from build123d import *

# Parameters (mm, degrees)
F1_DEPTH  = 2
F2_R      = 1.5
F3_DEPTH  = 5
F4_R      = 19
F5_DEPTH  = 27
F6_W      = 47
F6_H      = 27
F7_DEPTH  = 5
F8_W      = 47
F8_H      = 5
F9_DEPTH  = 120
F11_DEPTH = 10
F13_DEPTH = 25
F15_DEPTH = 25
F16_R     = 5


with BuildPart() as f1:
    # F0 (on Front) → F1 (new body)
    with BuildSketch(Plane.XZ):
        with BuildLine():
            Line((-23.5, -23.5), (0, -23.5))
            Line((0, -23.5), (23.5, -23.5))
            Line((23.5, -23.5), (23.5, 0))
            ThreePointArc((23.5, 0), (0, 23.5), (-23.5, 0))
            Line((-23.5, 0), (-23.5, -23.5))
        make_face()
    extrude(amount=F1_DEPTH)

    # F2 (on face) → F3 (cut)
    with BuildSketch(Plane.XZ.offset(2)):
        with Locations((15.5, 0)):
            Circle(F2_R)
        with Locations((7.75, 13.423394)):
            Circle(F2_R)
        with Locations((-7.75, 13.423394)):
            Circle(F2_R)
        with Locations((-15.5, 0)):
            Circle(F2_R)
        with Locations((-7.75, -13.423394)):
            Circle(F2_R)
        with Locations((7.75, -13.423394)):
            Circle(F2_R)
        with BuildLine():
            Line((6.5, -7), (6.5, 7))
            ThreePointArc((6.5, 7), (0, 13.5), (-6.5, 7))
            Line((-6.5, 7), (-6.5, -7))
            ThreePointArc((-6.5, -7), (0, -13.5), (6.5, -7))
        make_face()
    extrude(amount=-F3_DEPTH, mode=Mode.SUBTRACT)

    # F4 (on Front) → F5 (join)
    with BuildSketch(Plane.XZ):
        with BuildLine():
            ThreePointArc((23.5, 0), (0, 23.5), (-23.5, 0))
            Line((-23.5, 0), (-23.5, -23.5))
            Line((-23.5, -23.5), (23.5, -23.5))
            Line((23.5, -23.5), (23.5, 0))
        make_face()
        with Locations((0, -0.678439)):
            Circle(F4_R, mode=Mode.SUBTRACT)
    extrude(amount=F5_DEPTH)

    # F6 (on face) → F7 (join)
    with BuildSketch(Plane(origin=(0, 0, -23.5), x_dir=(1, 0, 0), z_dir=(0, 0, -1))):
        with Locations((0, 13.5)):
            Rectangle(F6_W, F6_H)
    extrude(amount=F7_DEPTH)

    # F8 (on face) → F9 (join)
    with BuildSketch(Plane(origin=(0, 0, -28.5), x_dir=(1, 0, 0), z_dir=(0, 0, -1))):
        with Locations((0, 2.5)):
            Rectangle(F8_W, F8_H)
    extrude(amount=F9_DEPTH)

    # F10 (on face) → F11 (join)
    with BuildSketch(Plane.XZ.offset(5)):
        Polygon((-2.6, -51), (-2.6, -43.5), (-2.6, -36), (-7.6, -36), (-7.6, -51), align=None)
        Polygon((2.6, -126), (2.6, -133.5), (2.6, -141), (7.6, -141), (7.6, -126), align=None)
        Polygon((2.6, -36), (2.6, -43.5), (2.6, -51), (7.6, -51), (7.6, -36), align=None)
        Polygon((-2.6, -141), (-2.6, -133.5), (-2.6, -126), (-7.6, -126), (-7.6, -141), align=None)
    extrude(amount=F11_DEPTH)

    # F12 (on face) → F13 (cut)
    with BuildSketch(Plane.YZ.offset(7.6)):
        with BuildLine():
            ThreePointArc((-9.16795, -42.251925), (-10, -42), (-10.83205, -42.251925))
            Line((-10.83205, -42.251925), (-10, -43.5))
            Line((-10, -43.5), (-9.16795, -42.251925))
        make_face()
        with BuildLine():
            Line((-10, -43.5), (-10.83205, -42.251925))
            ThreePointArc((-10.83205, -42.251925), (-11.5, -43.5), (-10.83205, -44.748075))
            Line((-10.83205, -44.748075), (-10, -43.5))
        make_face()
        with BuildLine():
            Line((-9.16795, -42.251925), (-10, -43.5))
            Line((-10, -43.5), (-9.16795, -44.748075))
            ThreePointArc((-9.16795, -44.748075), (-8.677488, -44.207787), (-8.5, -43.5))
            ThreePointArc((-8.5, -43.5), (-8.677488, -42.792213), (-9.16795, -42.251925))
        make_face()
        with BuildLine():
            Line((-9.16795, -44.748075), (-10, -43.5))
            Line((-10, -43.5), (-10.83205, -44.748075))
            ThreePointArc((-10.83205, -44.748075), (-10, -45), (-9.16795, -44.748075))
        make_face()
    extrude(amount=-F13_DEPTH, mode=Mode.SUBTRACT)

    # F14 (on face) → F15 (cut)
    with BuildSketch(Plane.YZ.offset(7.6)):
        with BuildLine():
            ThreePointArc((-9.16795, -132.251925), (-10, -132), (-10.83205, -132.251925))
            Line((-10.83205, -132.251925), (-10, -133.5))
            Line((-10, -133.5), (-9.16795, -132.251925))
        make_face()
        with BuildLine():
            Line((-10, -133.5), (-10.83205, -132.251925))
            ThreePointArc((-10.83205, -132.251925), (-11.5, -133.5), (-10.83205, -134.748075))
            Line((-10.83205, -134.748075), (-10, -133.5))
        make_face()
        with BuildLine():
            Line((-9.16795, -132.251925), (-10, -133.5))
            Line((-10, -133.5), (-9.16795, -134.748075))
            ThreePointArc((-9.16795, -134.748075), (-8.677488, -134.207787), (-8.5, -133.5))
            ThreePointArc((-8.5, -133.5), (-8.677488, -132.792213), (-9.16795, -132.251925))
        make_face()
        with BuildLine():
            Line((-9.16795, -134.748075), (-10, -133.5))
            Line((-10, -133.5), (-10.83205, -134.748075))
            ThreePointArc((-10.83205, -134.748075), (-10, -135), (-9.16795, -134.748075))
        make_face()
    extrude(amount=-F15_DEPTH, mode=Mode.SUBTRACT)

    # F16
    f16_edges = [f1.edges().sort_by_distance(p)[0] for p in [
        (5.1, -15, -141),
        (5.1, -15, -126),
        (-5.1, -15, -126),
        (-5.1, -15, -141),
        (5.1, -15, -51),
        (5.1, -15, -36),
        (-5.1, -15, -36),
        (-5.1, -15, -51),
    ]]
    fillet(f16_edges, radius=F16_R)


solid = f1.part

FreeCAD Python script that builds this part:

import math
import FreeCAD as App
import Part
import Sketcher
Q = App.Units.Quantity


def edges_at(feature, points):
    """Names of the edges that pass closest to the given points."""
    edges = feature.Shape.Edges
    near = lambda p: min(range(len(edges)), key=lambda i: edges[i].distToShape(Part.Vertex(*p))[0])
    return sorted({f"Edge{near(p) + 1}" for p in points})

doc = App.newDocument("Part")
body = doc.addObject("PartDesign::Body", "Body")

# Sketch on XZ plane
sketch1 = body.newObject("Sketcher::SketchObject", "Sketch")
sketch1.AttachmentSupport = (doc.getObject("XZ_Plane"), [""])
sketch1.MapMode = "FlatFace"
sketch1.addGeometry([
    Part.LineSegment(App.Vector(-24, -24, 0), App.Vector(24, -24, 0)),
    Part.LineSegment(App.Vector(24, -24, 0), App.Vector(24, 0, 0)),
    Part.ArcOfCircle(Part.Circle(App.Vector(0, 0, 0), App.Vector(0, 0, 1), 24), math.radians(0), math.radians(180)),
    Part.LineSegment(App.Vector(-24, 0, 0), App.Vector(-24, -24, 0)),
], False)
sketch1.addConstraint([
    Sketcher.Constraint("Coincident", 0, 2, 1, 1),
    Sketcher.Constraint("Tangent", 1, 2, 2, 1),
    Sketcher.Constraint("Tangent", 2, 2, 3, 1),
    Sketcher.Constraint("Coincident", 3, 2, 0, 1),
    Sketcher.Constraint("Horizontal", 0),
    Sketcher.Constraint("Vertical", 1),
    Sketcher.Constraint("Vertical", 3),
    Sketcher.Constraint("Coincident", 2, 3, -1, 1),
    Sketcher.Constraint("Radius", 2, Q("23.5 mm")),
    Sketcher.Constraint("DistanceY", 1, 1, 1, 2, Q("23.5 mm")),
])
pad1 = body.newObject("PartDesign::Pad", "Pad")
pad1.Profile = sketch1
pad1.Length = 2

# Sketch on XZ plane
sketch2 = body.newObject("Sketcher::SketchObject", "Sketch001")
sketch2.AttachmentSupport = (doc.getObject("XZ_Plane"), [""])
sketch2.MapMode = "FlatFace"
sketch2.AttachmentOffset = App.Placement(App.Vector(0, 0, 2), App.Rotation())
sketch2.addGeometry([
    Part.Circle(App.Vector(15.5, 0, 0), App.Vector(0, 0, 1), 1.5),  # 0
    Part.Circle(App.Vector(7.8, 13.4, 0), App.Vector(0, 0, 1), 1.5),  # 1
    Part.Circle(App.Vector(-7.8, 13.4, 0), App.Vector(0, 0, 1), 1.5),  # 2
    Part.Circle(App.Vector(-15.5, 0, 0), App.Vector(0, 0, 1), 1.5),  # 3
    Part.Circle(App.Vector(-7.8, -13.4, 0), App.Vector(0, 0, 1), 1.5),  # 4
    Part.Circle(App.Vector(7.8, -13.4, 0), App.Vector(0, 0, 1), 1.5),  # 5
    Part.LineSegment(App.Vector(6.5, -7, 0), App.Vector(6.5, 7, 0)),  # 6
    Part.ArcOfCircle(Part.Circle(App.Vector(0, 7, 0), App.Vector(0, 0, 1), 6.5), math.radians(0), math.radians(180)),  # 7
    Part.LineSegment(App.Vector(-6.5, 7, 0), App.Vector(-6.5, -7, 0)),  # 8
    Part.ArcOfCircle(Part.Circle(App.Vector(0, -7, 0), App.Vector(0, 0, 1), 6.5), math.radians(180), math.radians(360)),  # 9
], False)
sketch2.addConstraint([
    Sketcher.Constraint("Tangent", 6, 2, 7, 1),
    Sketcher.Constraint("Tangent", 7, 2, 8, 1),
    Sketcher.Constraint("Tangent", 8, 2, 9, 1),
    Sketcher.Constraint("Tangent", 9, 2, 6, 1),
    Sketcher.Constraint("Vertical", 6),
    Sketcher.Constraint("Vertical", 8),
    Sketcher.Constraint("Equal", 0, 1),
    Sketcher.Constraint("Equal", 1, 2),
    Sketcher.Constraint("Equal", 2, 3),
    Sketcher.Constraint("Equal", 3, 4),
    Sketcher.Constraint("Equal", 4, 5),
    Sketcher.Constraint("Symmetric", 0, 3, 3, 3, -1, 1),
    Sketcher.Constraint("Symmetric", 1, 3, 4, 3, -1, 1),
    Sketcher.Constraint("Symmetric", 2, 3, 5, 3, -1, 1),
    Sketcher.Constraint("Symmetric", 7, 3, 9, 3, -1, 1),
    Sketcher.Constraint("Symmetric", 1, 3, 2, 3, -2),
    Sketcher.Constraint("PointOnObject", 0, 3, -1),
    Sketcher.Constraint("Diameter", 0, Q("3 mm")),
    Sketcher.Constraint("Radius", 7, Q("6.5 mm")),
    Sketcher.Constraint("DistanceY", 6, 1, 6, 2, Q("14 mm")),
    Sketcher.Constraint("DistanceX", 3, 3, 0, 3, Q("31 mm")),
    Sketcher.Constraint("DistanceX", 2, 3, 1, 3, Q("15.5 mm")),
    Sketcher.Constraint("DistanceY", 4, 3, 2, 3, Q("26.846788 mm")),
])
pocket1 = body.newObject("PartDesign::Pocket", "Pocket")
pocket1.Profile = sketch2
pocket1.Length = 5

# Sketch on XZ plane
sketch3 = body.newObject("Sketcher::SketchObject", "Sketch002")
sketch3.AttachmentSupport = (doc.getObject("XZ_Plane"), [""])
sketch3.MapMode = "FlatFace"
sketch3.addGeometry([
    Part.ArcOfCircle(Part.Circle(App.Vector(0, 0, 0), App.Vector(0, 0, 1), 24), math.radians(0), math.radians(180)),  # 0
    Part.LineSegment(App.Vector(-24, 0, 0), App.Vector(-24, -24, 0)),  # 1
    Part.LineSegment(App.Vector(-24, -24, 0), App.Vector(24, -24, 0)),  # 2
    Part.LineSegment(App.Vector(24, -24, 0), App.Vector(24, 0, 0)),  # 3
    Part.Circle(App.Vector(0, -1, 0), App.Vector(0, 0, 1), 19),  # 4
], False)
sketch3.addConstraint([
    Sketcher.Constraint("Tangent", 0, 2, 1, 1),
    Sketcher.Constraint("Coincident", 1, 2, 2, 1),
    Sketcher.Constraint("Coincident", 2, 2, 3, 1),
    Sketcher.Constraint("Tangent", 3, 2, 0, 1),
    Sketcher.Constraint("Vertical", 1),
    Sketcher.Constraint("Horizontal", 2),
    Sketcher.Constraint("Vertical", 3),
    Sketcher.Constraint("Coincident", 0, 3, -1, 1),
    Sketcher.Constraint("PointOnObject", 4, 3, -2),
    Sketcher.Constraint("Diameter", 4, Q("38 mm")),
    Sketcher.Constraint("Radius", 0, Q("23.5 mm")),
    Sketcher.Constraint("DistanceY", 1, 2, 1, 1, Q("23.5 mm")),
    Sketcher.Constraint("DistanceY", 4, 3, -1, 1, Q("0.678439 mm")),
])
pad2 = body.newObject("PartDesign::Pad", "Pad001")
pad2.Profile = sketch3
pad2.Length = 27

# Sketch on XY plane
sketch4 = body.newObject("Sketcher::SketchObject", "Sketch003")
sketch4.AttachmentSupport = (doc.getObject("XY_Plane"), [""])
sketch4.MapMode = "FlatFace"
sketch4.AttachmentOffset = App.Placement(App.Vector(0, 0, -23.5), App.Rotation())
sketch4.addGeometry([
    Part.LineSegment(App.Vector(-24, -27, 0), App.Vector(-24, 0, 0)),
    Part.LineSegment(App.Vector(-24, 0, 0), App.Vector(24, 0, 0)),
    Part.LineSegment(App.Vector(24, 0, 0), App.Vector(24, -27, 0)),
    Part.LineSegment(App.Vector(24, -27, 0), App.Vector(-24, -27, 0)),
], False)
sketch4.addConstraint([
    Sketcher.Constraint("Coincident", 0, 2, 1, 1),
    Sketcher.Constraint("Coincident", 1, 2, 2, 1),
    Sketcher.Constraint("Coincident", 2, 2, 3, 1),
    Sketcher.Constraint("Coincident", 3, 2, 0, 1),
    Sketcher.Constraint("Vertical", 0),
    Sketcher.Constraint("Horizontal", 1),
    Sketcher.Constraint("Vertical", 2),
    Sketcher.Constraint("Horizontal", 3),
    Sketcher.Constraint("Symmetric", 0, 2, 1, 2, -1, 1),
    Sketcher.Constraint("DistanceX", 1, 1, 1, 2, Q("47 mm")),
    Sketcher.Constraint("DistanceY", 0, 1, 0, 2, Q("27 mm")),
])
pad3 = body.newObject("PartDesign::Pad", "Pad002")
pad3.Profile = sketch4
pad3.Length = 5
pad3.Reversed = True

# Sketch on XY plane
sketch5 = body.newObject("Sketcher::SketchObject", "Sketch004")
sketch5.AttachmentSupport = (doc.getObject("XY_Plane"), [""])
sketch5.MapMode = "FlatFace"
sketch5.AttachmentOffset = App.Placement(App.Vector(0, 0, -28.5), App.Rotation())
sketch5.addGeometry([
    Part.LineSegment(App.Vector(-24, -5, 0), App.Vector(-24, 0, 0)),
    Part.LineSegment(App.Vector(-24, 0, 0), App.Vector(24, 0, 0)),
    Part.LineSegment(App.Vector(24, 0, 0), App.Vector(24, -5, 0)),
    Part.LineSegment(App.Vector(24, -5, 0), App.Vector(-24, -5, 0)),
], False)
sketch5.addConstraint([
    Sketcher.Constraint("Coincident", 0, 2, 1, 1),
    Sketcher.Constraint("Coincident", 1, 2, 2, 1),
    Sketcher.Constraint("Coincident", 2, 2, 3, 1),
    Sketcher.Constraint("Coincident", 3, 2, 0, 1),
    Sketcher.Constraint("Vertical", 0),
    Sketcher.Constraint("Horizontal", 1),
    Sketcher.Constraint("Vertical", 2),
    Sketcher.Constraint("Horizontal", 3),
    Sketcher.Constraint("Symmetric", 0, 2, 1, 2, -1, 1),
    Sketcher.Constraint("DistanceX", 1, 1, 1, 2, Q("47 mm")),
    Sketcher.Constraint("DistanceY", 0, 1, 0, 2, Q("5 mm")),
])
pad4 = body.newObject("PartDesign::Pad", "Pad003")
pad4.Profile = sketch5
pad4.Length = 120
pad4.Reversed = True

# Sketch on XZ plane
sketch6 = body.newObject("Sketcher::SketchObject", "Sketch005")
sketch6.AttachmentSupport = (doc.getObject("XZ_Plane"), [""])
sketch6.MapMode = "FlatFace"
sketch6.AttachmentOffset = App.Placement(App.Vector(0, 0, 5), App.Rotation())
sketch6.addGeometry([
    Part.LineSegment(App.Vector(-3, -51, 0), App.Vector(-3, -36, 0)),  # 0
    Part.LineSegment(App.Vector(-3, -36, 0), App.Vector(-8, -36, 0)),  # 1
    Part.LineSegment(App.Vector(-8, -36, 0), App.Vector(-8, -51, 0)),  # 2
    Part.LineSegment(App.Vector(-8, -51, 0), App.Vector(-3, -51, 0)),  # 3
    Part.LineSegment(App.Vector(3, -126, 0), App.Vector(3, -141, 0)),  # 4
    Part.LineSegment(App.Vector(3, -141, 0), App.Vector(8, -141, 0)),  # 5
    Part.LineSegment(App.Vector(8, -141, 0), App.Vector(8, -126, 0)),  # 6
    Part.LineSegment(App.Vector(8, -126, 0), App.Vector(3, -126, 0)),  # 7
    Part.LineSegment(App.Vector(3, -36, 0), App.Vector(3, -51, 0)),  # 8
    Part.LineSegment(App.Vector(3, -51, 0), App.Vector(8, -51, 0)),  # 9
    Part.LineSegment(App.Vector(8, -51, 0), App.Vector(8, -36, 0)),  # 10
    Part.LineSegment(App.Vector(8, -36, 0), App.Vector(3, -36, 0)),  # 11
    Part.LineSegment(App.Vector(-3, -141, 0), App.Vector(-3, -126, 0)),  # 12
    Part.LineSegment(App.Vector(-3, -126, 0), App.Vector(-8, -126, 0)),  # 13
    Part.LineSegment(App.Vector(-8, -126, 0), App.Vector(-8, -141, 0)),  # 14
    Part.LineSegment(App.Vector(-8, -141, 0), App.Vector(-3, -141, 0)),  # 15
], False)
sketch6.addConstraint([
    Sketcher.Constraint("Coincident", 0, 2, 1, 1),
    Sketcher.Constraint("Coincident", 1, 2, 2, 1),
    Sketcher.Constraint("Coincident", 2, 2, 3, 1),
    Sketcher.Constraint("Coincident", 3, 2, 0, 1),
    Sketcher.Constraint("Coincident", 4, 2, 5, 1),
    Sketcher.Constraint("Coincident", 5, 2, 6, 1),
    Sketcher.Constraint("Coincident", 6, 2, 7, 1),
    Sketcher.Constraint("Coincident", 7, 2, 4, 1),
    Sketcher.Constraint("Coincident", 8, 2, 9, 1),
    Sketcher.Constraint("Coincident", 9, 2, 10, 1),
    Sketcher.Constraint("Coincident", 10, 2, 11, 1),
    Sketcher.Constraint("Coincident", 11, 2, 8, 1),
    Sketcher.Constraint("Coincident", 12, 2, 13, 1),
    Sketcher.Constraint("Coincident", 13, 2, 14, 1),
    Sketcher.Constraint("Coincident", 14, 2, 15, 1),
    Sketcher.Constraint("Coincident", 15, 2, 12, 1),
    Sketcher.Constraint("Vertical", 0),
    Sketcher.Constraint("Horizontal", 1),
    Sketcher.Constraint("Vertical", 2),
    Sketcher.Constraint("Horizontal", 3),
    Sketcher.Constraint("Vertical", 4),
    Sketcher.Constraint("Horizontal", 5),
    Sketcher.Constraint("Vertical", 6),
    Sketcher.Constraint("Horizontal", 7),
    Sketcher.Constraint("Vertical", 8),
    Sketcher.Constraint("Horizontal", 9),
    Sketcher.Constraint("Vertical", 10),
    Sketcher.Constraint("Horizontal", 11),
    Sketcher.Constraint("Vertical", 12),
    Sketcher.Constraint("Horizontal", 13),
    Sketcher.Constraint("Vertical", 14),
    Sketcher.Constraint("Horizontal", 15),
    Sketcher.Constraint("Symmetric", 3, 2, 8, 2, -2),
    Sketcher.Constraint("Symmetric", 1, 2, 10, 2, -2),
    Sketcher.Constraint("Symmetric", 7, 2, 12, 2, -2),
    Sketcher.Constraint("Symmetric", 5, 2, 14, 2, -2),
    Sketcher.Constraint("Vertical", 7, 2, 8, 2),
    Sketcher.Constraint("Vertical", 6, 2, 9, 2),
    Sketcher.Constraint("Equal", 2, 4),
    Sketcher.Constraint("DistanceX", 1, 2, 1, 1, Q("5 mm")),
    Sketcher.Constraint("DistanceY", 0, 1, 0, 2, Q("15 mm")),
    Sketcher.Constraint("DistanceY", 0, 2, -1, 1, Q("36 mm")),
    Sketcher.Constraint("DistanceY", 4, 2, -1, 1, Q("141 mm")),
    Sketcher.Constraint("DistanceX", 0, 2, -1, 1, Q("2.6 mm")),
])
pad5 = body.newObject("PartDesign::Pad", "Pad004")
pad5.Profile = sketch6
pad5.Length = 10

# Sketch on YZ plane
sketch7 = body.newObject("Sketcher::SketchObject", "Sketch006")
sketch7.AttachmentSupport = (doc.getObject("YZ_Plane"), [""])
sketch7.MapMode = "FlatFace"
sketch7.AttachmentOffset = App.Placement(App.Vector(0, 0, 7.6), App.Rotation())
sketch7.addGeometry([
    Part.ArcOfCircle(Part.Circle(App.Vector(-10, -43.5, 0), App.Vector(0, 0, 1), 1.5), math.radians(56), math.radians(124)),  # 0
    Part.ArcOfCircle(Part.Circle(App.Vector(-10, -43.5, 0), App.Vector(0, 0, 1), 1.5), math.radians(124), math.radians(236)),  # 1
    Part.ArcOfCircle(Part.Circle(App.Vector(-10, -43.5, 0), App.Vector(0, 0, 1), 1.5), math.radians(-124), math.radians(-56)),  # 2
    Part.ArcOfCircle(Part.Circle(App.Vector(-10, -43.5, 0), App.Vector(0, 0, 1), 1.5), math.radians(-56), math.radians(0)),  # 3
    Part.ArcOfCircle(Part.Circle(App.Vector(-10, -43.5, 0), App.Vector(0, 0, 1), 1.5), math.radians(0), math.radians(56)),  # 4
], False)
sketch7.addConstraint([
    Sketcher.Constraint("Tangent", 0, 2, 1, 1),
    Sketcher.Constraint("Tangent", 1, 2, 2, 1),
    Sketcher.Constraint("Coincident", 2, 2, 3, 1),
    Sketcher.Constraint("Tangent", 3, 2, 4, 1),
    Sketcher.Constraint("Coincident", 4, 2, 0, 1),
    Sketcher.Constraint("Coincident", 2, 3, 0, 3),
    Sketcher.Constraint("Coincident", 3, 3, 0, 3),
    Sketcher.Constraint("Horizontal", 1, 2, 2, 2),
    Sketcher.Constraint("Horizontal", 4, 3, 3, 2),
    Sketcher.Constraint("Horizontal", 0, 2, 4, 2),
    Sketcher.Constraint("Vertical", 0, 2, 1, 2),
    Sketcher.Constraint("Radius", 1, Q("1.499999 mm")),
    Sketcher.Constraint("DistanceX", 0, 3, -1, 1, Q("10 mm")),
    Sketcher.Constraint("DistanceY", 1, 3, -1, 1, Q("43.5 mm")),
    Sketcher.Constraint("DistanceX", 0, 2, -1, 1, Q("10.83205 mm")),
])
pocket2 = body.newObject("PartDesign::Pocket", "Pocket001")
pocket2.Profile = sketch7
pocket2.Length = 25

# Sketch on YZ plane
sketch8 = body.newObject("Sketcher::SketchObject", "Sketch007")
sketch8.AttachmentSupport = (doc.getObject("YZ_Plane"), [""])
sketch8.MapMode = "FlatFace"
sketch8.AttachmentOffset = App.Placement(App.Vector(0, 0, 7.6), App.Rotation())
sketch8.addGeometry([
    Part.ArcOfCircle(Part.Circle(App.Vector(-10, -133.5, 0), App.Vector(0, 0, 1), 1.5), math.radians(56), math.radians(124)),  # 0
    Part.ArcOfCircle(Part.Circle(App.Vector(-10, -133.5, 0), App.Vector(0, 0, 1), 1.5), math.radians(124), math.radians(236)),  # 1
    Part.ArcOfCircle(Part.Circle(App.Vector(-10, -133.5, 0), App.Vector(0, 0, 1), 1.5), math.radians(-124), math.radians(-56)),  # 2
    Part.ArcOfCircle(Part.Circle(App.Vector(-10, -133.5, 0), App.Vector(0, 0, 1), 1.5), math.radians(-56), math.radians(0)),  # 3
    Part.ArcOfCircle(Part.Circle(App.Vector(-10, -133.5, 0), App.Vector(0, 0, 1), 1.5), math.radians(0), math.radians(56)),  # 4
], False)
sketch8.addConstraint([
    Sketcher.Constraint("Tangent", 0, 2, 1, 1),
    Sketcher.Constraint("Tangent", 1, 2, 2, 1),
    Sketcher.Constraint("Coincident", 2, 2, 3, 1),
    Sketcher.Constraint("Tangent", 3, 2, 4, 1),
    Sketcher.Constraint("Coincident", 4, 2, 0, 1),
    Sketcher.Constraint("Coincident", 2, 3, 0, 3),
    Sketcher.Constraint("Coincident", 3, 3, 0, 3),
    Sketcher.Constraint("Horizontal", 1, 2, 2, 2),
    Sketcher.Constraint("Horizontal", 4, 3, 3, 2),
    Sketcher.Constraint("Horizontal", 0, 2, 4, 2),
    Sketcher.Constraint("Vertical", 0, 2, 1, 2),
    Sketcher.Constraint("Radius", 1, Q("1.499999 mm")),
    Sketcher.Constraint("DistanceX", 0, 3, -1, 1, Q("10 mm")),
    Sketcher.Constraint("DistanceY", 1, 3, -1, 1, Q("133.5 mm")),
    Sketcher.Constraint("DistanceX", 0, 2, -1, 1, Q("10.83205 mm")),
])
pocket3 = body.newObject("PartDesign::Pocket", "Pocket002")
pocket3.Profile = sketch8
pocket3.Length = 25
doc.recompute()

fillet = body.newObject("PartDesign::Fillet", "Fillet")
fillet.Base = (pocket3, edges_at(pocket3, [
    (5.1, -15, -141),
    (5.1, -15, -126),
    (-5.1, -15, -126),
    (-5.1, -15, -141),
    (5.1, -15, -51),
    (5.1, -15, -36),
    (-5.1, -15, -36),
    (-5.1, -15, -51),
]))
fillet.Radius = 5

doc.recompute()
